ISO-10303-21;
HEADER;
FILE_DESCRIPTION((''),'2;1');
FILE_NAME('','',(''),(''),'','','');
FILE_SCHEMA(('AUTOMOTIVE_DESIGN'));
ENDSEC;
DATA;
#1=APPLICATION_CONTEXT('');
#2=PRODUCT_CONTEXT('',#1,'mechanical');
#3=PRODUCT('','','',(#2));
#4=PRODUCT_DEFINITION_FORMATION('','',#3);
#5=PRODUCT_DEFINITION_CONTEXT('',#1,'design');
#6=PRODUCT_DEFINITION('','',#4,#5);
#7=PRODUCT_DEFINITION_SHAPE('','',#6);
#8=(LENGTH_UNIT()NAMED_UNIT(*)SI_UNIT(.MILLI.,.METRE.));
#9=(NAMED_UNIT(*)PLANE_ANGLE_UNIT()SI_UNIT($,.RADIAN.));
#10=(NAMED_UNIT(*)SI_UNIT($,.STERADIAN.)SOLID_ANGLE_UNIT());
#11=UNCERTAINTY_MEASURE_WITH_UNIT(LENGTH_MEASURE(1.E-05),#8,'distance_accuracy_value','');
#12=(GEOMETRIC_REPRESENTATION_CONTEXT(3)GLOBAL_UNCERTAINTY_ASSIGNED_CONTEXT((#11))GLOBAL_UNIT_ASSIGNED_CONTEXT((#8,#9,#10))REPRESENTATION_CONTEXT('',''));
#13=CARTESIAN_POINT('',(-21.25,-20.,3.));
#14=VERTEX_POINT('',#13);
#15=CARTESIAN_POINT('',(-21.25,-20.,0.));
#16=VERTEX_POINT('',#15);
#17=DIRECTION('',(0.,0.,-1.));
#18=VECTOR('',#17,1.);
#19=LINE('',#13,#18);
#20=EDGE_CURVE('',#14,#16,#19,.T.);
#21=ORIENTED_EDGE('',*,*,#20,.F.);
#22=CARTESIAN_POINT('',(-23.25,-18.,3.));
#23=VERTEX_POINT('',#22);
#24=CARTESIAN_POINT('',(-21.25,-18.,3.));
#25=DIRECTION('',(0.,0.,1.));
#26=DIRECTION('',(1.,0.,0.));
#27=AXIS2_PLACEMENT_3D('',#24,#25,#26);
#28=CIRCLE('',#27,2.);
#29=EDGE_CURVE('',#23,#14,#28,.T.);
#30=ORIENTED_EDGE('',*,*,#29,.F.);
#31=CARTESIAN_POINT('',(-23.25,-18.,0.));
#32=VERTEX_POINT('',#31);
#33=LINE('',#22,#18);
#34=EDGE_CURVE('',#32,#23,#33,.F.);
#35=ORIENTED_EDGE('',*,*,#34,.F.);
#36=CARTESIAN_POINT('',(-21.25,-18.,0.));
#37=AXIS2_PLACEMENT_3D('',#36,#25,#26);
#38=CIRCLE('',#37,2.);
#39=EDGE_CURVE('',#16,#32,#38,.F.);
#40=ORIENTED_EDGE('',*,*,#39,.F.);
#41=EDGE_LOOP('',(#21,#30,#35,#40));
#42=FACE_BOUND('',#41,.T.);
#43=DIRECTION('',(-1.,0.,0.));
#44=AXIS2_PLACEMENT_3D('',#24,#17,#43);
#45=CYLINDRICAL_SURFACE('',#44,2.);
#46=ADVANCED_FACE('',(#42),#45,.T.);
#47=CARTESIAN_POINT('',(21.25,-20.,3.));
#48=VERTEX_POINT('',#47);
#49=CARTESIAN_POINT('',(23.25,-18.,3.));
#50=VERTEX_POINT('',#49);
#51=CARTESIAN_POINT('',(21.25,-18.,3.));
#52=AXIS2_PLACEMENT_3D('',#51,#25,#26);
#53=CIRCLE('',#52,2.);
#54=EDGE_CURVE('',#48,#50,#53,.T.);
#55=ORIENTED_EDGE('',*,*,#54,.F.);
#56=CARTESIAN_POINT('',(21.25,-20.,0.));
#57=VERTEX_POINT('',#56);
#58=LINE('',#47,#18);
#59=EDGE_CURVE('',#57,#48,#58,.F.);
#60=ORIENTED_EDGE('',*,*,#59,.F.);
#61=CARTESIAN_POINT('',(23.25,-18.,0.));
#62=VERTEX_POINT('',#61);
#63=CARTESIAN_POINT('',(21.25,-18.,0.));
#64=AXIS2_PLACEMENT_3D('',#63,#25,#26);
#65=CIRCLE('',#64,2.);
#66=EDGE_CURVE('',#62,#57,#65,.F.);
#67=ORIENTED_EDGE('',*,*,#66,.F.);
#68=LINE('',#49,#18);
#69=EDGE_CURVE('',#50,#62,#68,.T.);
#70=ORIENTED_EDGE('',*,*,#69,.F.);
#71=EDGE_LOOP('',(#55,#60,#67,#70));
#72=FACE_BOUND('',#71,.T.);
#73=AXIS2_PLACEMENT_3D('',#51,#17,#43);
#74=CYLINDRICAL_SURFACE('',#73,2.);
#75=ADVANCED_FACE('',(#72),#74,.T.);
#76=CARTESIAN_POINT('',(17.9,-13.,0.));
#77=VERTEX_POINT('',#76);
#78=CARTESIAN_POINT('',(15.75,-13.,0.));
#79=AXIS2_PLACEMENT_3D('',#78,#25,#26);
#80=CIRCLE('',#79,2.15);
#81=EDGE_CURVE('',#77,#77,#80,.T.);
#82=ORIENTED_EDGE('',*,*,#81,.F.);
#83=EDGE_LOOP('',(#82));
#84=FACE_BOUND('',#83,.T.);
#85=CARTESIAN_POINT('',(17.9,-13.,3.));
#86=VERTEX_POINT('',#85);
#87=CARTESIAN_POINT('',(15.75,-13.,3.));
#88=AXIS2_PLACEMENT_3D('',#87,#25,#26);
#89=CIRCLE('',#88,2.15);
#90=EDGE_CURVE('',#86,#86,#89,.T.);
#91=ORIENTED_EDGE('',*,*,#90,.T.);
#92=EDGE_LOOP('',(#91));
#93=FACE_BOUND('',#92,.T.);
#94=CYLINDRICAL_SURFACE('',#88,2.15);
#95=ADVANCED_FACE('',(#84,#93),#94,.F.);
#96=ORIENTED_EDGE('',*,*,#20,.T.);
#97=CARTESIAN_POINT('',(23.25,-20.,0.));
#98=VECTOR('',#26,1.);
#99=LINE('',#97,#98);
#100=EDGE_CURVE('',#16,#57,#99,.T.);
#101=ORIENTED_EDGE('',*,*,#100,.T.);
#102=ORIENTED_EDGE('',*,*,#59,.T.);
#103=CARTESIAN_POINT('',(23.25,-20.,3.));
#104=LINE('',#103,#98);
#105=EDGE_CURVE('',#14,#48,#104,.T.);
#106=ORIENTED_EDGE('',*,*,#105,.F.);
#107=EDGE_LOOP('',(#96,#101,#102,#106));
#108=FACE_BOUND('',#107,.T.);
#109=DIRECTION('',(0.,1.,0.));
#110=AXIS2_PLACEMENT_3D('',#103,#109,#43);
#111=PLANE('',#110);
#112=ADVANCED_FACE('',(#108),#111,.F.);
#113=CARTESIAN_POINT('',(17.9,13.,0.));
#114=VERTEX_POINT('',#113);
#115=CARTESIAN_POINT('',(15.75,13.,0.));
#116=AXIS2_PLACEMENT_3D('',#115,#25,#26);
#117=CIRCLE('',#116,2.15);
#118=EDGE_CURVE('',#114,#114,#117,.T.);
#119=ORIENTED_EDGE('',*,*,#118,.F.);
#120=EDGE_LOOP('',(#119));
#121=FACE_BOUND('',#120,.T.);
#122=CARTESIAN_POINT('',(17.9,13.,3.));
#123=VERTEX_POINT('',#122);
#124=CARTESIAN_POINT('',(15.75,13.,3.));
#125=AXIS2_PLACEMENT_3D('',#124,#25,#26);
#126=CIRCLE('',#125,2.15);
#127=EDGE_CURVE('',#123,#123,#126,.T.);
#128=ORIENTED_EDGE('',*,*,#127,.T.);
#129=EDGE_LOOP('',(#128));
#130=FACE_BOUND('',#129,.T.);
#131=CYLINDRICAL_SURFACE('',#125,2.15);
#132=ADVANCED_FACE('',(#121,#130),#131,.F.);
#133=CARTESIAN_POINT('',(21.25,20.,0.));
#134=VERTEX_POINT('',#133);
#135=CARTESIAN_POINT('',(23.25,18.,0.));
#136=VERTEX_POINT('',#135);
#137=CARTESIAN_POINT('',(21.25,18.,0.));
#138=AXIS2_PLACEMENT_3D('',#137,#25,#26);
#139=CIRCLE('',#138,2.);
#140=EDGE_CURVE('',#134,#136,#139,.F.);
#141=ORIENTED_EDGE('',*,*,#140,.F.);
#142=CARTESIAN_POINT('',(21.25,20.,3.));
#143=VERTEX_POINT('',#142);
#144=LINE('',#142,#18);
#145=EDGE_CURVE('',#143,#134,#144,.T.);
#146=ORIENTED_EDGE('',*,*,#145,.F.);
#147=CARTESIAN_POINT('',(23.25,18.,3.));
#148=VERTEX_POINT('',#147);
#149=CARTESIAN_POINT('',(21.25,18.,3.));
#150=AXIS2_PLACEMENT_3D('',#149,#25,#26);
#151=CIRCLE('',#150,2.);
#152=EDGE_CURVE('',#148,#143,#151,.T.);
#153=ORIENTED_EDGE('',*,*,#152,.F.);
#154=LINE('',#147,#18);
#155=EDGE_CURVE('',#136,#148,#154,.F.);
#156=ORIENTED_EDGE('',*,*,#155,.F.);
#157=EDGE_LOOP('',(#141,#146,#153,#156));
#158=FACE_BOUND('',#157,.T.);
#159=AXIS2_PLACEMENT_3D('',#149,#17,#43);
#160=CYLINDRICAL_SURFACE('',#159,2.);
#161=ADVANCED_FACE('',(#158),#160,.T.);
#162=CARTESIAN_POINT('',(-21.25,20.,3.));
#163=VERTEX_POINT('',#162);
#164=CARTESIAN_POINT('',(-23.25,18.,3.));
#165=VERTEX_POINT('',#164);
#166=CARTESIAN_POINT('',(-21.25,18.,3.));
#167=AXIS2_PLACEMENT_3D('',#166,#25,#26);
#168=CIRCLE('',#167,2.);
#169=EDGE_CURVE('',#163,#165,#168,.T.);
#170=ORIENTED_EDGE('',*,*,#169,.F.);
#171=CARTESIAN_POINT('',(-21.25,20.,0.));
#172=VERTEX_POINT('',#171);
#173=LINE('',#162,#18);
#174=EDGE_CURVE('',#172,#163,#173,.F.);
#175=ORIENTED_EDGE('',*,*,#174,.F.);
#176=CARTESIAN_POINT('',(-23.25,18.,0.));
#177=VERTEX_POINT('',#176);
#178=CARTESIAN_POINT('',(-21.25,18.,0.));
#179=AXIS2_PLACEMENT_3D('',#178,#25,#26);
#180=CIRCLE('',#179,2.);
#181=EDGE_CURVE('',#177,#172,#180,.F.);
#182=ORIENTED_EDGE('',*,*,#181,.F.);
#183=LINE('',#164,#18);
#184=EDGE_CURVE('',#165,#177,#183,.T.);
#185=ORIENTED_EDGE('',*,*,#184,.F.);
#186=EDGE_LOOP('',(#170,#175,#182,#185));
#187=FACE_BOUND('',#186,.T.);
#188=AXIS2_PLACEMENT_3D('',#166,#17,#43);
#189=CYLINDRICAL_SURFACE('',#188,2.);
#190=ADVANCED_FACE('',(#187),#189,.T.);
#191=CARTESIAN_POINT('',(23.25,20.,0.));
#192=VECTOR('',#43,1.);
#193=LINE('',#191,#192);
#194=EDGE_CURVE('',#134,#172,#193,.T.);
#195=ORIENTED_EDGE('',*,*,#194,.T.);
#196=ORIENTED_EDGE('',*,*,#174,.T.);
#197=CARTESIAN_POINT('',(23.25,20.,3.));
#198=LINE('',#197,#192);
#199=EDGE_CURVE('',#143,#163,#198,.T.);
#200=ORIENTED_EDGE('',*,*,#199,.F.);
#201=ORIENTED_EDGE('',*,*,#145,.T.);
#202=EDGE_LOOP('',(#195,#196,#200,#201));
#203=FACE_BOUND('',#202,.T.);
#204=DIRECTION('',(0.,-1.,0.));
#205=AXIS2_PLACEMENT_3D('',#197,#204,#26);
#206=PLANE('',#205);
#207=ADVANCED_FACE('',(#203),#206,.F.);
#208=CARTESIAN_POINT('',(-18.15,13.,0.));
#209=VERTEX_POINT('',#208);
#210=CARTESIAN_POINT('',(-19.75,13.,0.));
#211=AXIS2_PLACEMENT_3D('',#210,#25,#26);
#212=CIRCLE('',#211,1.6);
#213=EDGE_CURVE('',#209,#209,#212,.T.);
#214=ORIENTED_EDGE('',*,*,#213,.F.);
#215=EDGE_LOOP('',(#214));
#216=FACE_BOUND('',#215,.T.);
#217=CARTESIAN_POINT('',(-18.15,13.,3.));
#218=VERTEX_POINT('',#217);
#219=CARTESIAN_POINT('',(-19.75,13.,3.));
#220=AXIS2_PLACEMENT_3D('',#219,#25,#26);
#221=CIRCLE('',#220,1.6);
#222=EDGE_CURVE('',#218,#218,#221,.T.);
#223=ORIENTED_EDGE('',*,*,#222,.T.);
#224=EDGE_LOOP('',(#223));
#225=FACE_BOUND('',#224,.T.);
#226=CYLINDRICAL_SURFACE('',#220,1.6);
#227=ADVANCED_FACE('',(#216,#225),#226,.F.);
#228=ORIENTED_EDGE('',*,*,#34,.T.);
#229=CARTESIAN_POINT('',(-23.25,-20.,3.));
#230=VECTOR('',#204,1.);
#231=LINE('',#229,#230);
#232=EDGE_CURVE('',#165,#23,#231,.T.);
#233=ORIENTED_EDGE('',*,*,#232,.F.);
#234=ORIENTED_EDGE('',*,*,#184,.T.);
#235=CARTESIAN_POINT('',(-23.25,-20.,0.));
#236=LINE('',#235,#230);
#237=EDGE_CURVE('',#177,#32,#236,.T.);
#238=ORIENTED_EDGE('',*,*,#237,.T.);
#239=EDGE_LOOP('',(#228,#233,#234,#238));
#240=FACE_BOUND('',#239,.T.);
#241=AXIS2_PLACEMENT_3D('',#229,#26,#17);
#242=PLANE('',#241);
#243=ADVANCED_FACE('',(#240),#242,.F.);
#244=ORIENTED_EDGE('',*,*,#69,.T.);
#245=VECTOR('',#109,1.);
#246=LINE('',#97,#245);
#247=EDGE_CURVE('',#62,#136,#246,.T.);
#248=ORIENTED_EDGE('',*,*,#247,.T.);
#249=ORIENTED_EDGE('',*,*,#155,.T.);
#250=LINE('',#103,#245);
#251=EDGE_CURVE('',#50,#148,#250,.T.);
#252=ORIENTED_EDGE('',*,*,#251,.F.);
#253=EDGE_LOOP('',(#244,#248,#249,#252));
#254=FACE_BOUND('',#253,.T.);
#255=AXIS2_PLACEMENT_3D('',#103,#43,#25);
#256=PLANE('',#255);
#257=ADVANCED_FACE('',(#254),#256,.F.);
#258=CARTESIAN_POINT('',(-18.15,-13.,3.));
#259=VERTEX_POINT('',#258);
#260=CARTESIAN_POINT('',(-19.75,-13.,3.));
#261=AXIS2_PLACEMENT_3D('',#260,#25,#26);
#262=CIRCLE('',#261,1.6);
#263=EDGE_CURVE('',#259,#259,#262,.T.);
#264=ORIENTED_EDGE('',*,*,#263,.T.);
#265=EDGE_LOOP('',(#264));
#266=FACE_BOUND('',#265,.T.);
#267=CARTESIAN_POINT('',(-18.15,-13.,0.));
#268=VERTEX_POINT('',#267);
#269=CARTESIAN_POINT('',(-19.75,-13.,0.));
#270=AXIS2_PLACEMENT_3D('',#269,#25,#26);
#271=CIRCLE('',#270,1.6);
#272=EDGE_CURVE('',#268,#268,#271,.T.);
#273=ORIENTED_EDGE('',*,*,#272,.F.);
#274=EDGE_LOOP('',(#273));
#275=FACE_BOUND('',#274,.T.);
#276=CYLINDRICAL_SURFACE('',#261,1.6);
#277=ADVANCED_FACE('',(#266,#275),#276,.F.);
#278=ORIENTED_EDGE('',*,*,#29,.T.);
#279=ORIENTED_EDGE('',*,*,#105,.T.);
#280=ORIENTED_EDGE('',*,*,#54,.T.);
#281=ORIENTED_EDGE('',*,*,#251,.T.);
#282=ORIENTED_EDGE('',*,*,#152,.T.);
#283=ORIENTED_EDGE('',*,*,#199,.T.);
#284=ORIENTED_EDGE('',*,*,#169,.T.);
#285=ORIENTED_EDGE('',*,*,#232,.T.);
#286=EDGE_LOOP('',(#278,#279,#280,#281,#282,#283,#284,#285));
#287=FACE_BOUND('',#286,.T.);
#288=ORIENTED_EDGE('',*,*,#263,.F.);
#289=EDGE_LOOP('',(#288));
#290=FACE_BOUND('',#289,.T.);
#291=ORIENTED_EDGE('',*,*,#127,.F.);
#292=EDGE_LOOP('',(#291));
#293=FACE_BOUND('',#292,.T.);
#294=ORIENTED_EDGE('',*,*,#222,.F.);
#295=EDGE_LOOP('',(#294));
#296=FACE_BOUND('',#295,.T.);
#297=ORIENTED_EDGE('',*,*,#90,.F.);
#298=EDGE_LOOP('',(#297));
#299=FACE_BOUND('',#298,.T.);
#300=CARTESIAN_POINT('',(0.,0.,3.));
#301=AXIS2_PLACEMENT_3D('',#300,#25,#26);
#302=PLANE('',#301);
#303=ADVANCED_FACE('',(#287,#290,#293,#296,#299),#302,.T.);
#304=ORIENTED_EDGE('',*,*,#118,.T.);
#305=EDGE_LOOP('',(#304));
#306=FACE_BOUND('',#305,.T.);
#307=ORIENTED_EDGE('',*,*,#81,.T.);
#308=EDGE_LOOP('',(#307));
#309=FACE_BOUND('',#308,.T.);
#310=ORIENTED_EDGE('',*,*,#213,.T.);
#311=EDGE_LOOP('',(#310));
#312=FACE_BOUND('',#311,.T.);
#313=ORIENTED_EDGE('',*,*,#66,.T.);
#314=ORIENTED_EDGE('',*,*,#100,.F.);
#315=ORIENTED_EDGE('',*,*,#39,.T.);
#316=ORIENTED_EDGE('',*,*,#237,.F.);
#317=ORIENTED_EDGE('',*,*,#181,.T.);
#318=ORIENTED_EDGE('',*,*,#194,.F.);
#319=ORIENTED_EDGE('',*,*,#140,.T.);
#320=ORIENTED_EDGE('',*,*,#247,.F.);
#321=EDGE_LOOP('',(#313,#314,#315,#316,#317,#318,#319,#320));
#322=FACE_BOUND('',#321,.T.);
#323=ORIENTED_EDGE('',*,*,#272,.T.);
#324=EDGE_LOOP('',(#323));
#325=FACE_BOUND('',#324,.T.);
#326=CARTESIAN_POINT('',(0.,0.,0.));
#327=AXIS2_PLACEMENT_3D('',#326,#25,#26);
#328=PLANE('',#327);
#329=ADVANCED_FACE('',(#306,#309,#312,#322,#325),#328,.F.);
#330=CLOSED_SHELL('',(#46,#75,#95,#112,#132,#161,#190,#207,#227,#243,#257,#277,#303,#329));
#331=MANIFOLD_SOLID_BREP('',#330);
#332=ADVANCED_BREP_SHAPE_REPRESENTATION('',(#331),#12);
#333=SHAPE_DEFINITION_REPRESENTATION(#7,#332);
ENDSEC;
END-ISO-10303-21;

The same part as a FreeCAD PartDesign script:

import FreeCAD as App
import Part
import Sketcher
from FreeCAD import Vector
Q = App.Units.Quantity


def edges_at(feature, points):
    """Names of the edges that pass closest to the given points."""
    edges = feature.Shape.Edges
    near = lambda p: min(range(len(edges)), key=lambda i: edges[i].distToShape(Part.Vertex(*p))[0])
    return sorted({f"Edge{near(p) + 1}" for p in points})

doc = App.newDocument("Part")
body = doc.addObject("PartDesign::Body", "Body")

# Sketch on XY plane
sketch1 = body.newObject("Sketcher::SketchObject", "Sketch")
sketch1.AttachmentSupport = (doc.getObject("XY_Plane"), [""])
sketch1.MapMode = "FlatFace"
sketch1.addGeometry([
    Part.LineSegment(Vector(-23, 20, 0), Vector(-23, -20, 0)),
    Part.LineSegment(Vector(-23, -20, 0), Vector(23, -20, 0)),
    Part.LineSegment(Vector(23, -20, 0), Vector(23, 20, 0)),
    Part.LineSegment(Vector(23, 20, 0), Vector(-23, 20, 0)),
], False)
sketch1.addConstraint([
    Sketcher.Constraint("Coincident", 0, 2, 1, 1),
    Sketcher.Constraint("Coincident", 1, 2, 2, 1),
    Sketcher.Constraint("Coincident", 2, 2, 3, 1),
    Sketcher.Constraint("Coincident", 3, 2, 0, 1),
    Sketcher.Constraint("Vertical", 0),
    Sketcher.Constraint("Horizontal", 1),
    Sketcher.Constraint("Vertical", 2),
    Sketcher.Constraint("Horizontal", 3),
    Sketcher.Constraint("Symmetric", 0, 2, 2, 2, -1, 1),
    Sketcher.Constraint("DistanceY", 0, 2, 0, 1, Q("40 mm")),
    Sketcher.Constraint("DistanceX", 1, 1, 1, 2, Q("46.5 mm")),
])
pad1 = body.newObject("PartDesign::Pad", "Pad")
pad1.Profile = sketch1
pad1.Length = 3

# Sketch on XY plane
sketch2 = body.newObject("Sketcher::SketchObject", "Sketch001")
sketch2.AttachmentSupport = (doc.getObject("XY_Plane"), [""])
sketch2.MapMode = "FlatFace"
sketch2.AttachmentOffset = App.Placement(Vector(0, 0, 3), App.Rotation())
sketch2.addGeometry([
    Part.Circle(Vector(-19.8, 13, 0), Vector(0, 0, 1), 1.6),
    Part.Circle(Vector(-19.8, -13, 0), Vector(0, 0, 1), 1.6),
], False)
sketch2.addConstraint([
    Sketcher.Constraint("Equal", 0, 1),
    Sketcher.Constraint("Symmetric", 0, 3, 1, 3, -1),
    Sketcher.Constraint("Diameter", 0, Q("3.2 mm")),
    Sketcher.Constraint("DistanceY", -1, 1, 0, 3, Q("13 mm")),
    Sketcher.Constraint("DistanceX", 0, 3, -1, 1, Q("19.75 mm")),
])
doc.recompute()
hole = body.newObject("PartDesign::Hole", "Hole")
hole.Profile = sketch2
hole.ThreadType = "None"
hole.Diameter = 3.2
hole.DepthType = "Dimension"
hole.Depth = 8
hole.DrillPoint = "Angled"
hole.DrillPointAngle = 118

# Sketch on XY plane
sketch3 = body.newObject("Sketcher::SketchObject", "Sketch002")
sketch3.AttachmentSupport = (doc.getObject("XY_Plane"), [""])
sketch3.MapMode = "FlatFace"
sketch3.AttachmentOffset = App.Placement(Vector(0, 0, 3), App.Rotation())
sketch3.addGeometry([
    Part.Circle(Vector(15.8, 13, 0), Vector(0, 0, 1), 2.1),
    Part.Circle(Vector(15.8, -13, 0), Vector(0, 0, 1), 2.1),
], False)
sketch3.addConstraint([
    Sketcher.Constraint("Equal", 0, 1),
    Sketcher.Constraint("Symmetric", 0, 3, 1, 3, -1),
    Sketcher.Constraint("Diameter", 0, Q("4.3 mm")),
    Sketcher.Constraint("DistanceY", -1, 1, 0, 3, Q("13 mm")),
    Sketcher.Constraint("DistanceX", -1, 1, 0, 3, Q("15.75 mm")),
])
doc.recompute()
hole2 = body.newObject("PartDesign::Hole", "Hole001")
hole2.Profile = sketch3
hole2.ThreadType = "None"
hole2.Diameter = 4.3
hole2.DepthType = "Dimension"
hole2.Depth = 8
hole2.DrillPoint = "Angled"
hole2.DrillPointAngle = 118
doc.recompute()

fillet = body.newObject("PartDesign::Fillet", "Fillet")
fillet.Base = (hole2, edges_at(hole2, [
    (-23.25, 20, 1.5),
    (23.25, 20, 1.5),
    (23.25, -20, 1.5),
    (-23.25, -20, 1.5),
]))
fillet.Radius = 2

doc.recompute()
